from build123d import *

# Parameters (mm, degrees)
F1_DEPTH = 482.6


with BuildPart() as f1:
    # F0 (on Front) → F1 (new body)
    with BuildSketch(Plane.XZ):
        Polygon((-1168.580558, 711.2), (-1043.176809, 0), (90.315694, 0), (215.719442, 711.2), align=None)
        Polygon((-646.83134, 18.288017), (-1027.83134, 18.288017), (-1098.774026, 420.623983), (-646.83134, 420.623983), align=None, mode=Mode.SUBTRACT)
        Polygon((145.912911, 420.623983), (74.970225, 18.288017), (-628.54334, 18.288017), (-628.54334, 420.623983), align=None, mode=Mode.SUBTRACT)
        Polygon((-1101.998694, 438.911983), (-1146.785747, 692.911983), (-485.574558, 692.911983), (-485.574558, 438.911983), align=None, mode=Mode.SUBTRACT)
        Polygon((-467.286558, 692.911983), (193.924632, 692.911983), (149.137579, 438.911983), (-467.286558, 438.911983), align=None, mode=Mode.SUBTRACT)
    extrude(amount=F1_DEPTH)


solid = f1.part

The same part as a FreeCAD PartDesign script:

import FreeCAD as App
import Part
import Sketcher

V = App.Vector
Q = App.Units.Quantity

doc = App.newDocument("Part")
body = doc.addObject("PartDesign::Body", "Body")

sketch1 = doc.addObject("Sketcher::SketchObject", "Sketch")
body.addObject(sketch1)
sketch1.AttachmentSupport = (doc.XZ_Plane, [""])
sketch1.MapMode = "FlatFace"
sketch1.addGeometry([
    Part.LineSegment(V(-1168.580558, 711.2, 0), V(-1043.176809, 0, 0)),
    Part.LineSegment(V(-1043.176809, 0, 0), V(90.315694, 0, 0)),
    Part.LineSegment(V(90.315694, 0, 0), V(215.719442, 711.2, 0)),
    Part.LineSegment(V(215.719442, 711.2, 0), V(-1168.580558, 711.2, 0)),
    Part.LineSegment(V(-646.83134, 420.623983, 0), V(-646.83134, 18.288017, 0)),
    Part.LineSegment(V(-646.83134, 18.288017, 0), V(-1027.83134, 18.288017, 0)),
    Part.LineSegment(V(-1027.83134, 18.288017, 0), V(-1098.774026, 420.623983, 0)),
    Part.LineSegment(V(-1098.774026, 420.623983, 0), V(-646.83134, 420.623983, 0)),
    Part.LineSegment(V(-628.54334, 420.623983, 0), V(145.912911, 420.623983, 0)),
    Part.LineSegment(V(145.912911, 420.623983, 0), V(74.970225, 18.288017, 0)),
    Part.LineSegment(V(74.970225, 18.288017, 0), V(-628.54334, 18.288017, 0)),
    Part.LineSegment(V(-628.54334, 18.288017, 0), V(-628.54334, 420.623983, 0)),
    Part.LineSegment(V(-485.574558, 438.911983, 0), V(-1101.998694, 438.911983, 0)),
    Part.LineSegment(V(-1101.998694, 438.911983, 0), V(-1146.785747, 692.911983, 0)),
    Part.LineSegment(V(-1146.785747, 692.911983, 0), V(-485.574558, 692.911983, 0)),
    Part.LineSegment(V(-485.574558, 692.911983, 0), V(-485.574558, 438.911983, 0)),
    Part.LineSegment(V(-467.286558, 438.911983, 0), V(-467.286558, 692.911983, 0)),
    Part.LineSegment(V(-467.286558, 692.911983, 0), V(193.924632, 692.911983, 0)),
    Part.LineSegment(V(193.924632, 692.911983, 0), V(149.137579, 438.911983, 0)),
    Part.LineSegment(V(149.137579, 438.911983, 0), V(-467.286558, 438.911983, 0)),
], False)
sketch1.addConstraint([
    Sketcher.Constraint("Coincident", 0, 2, 1, 1),
    Sketcher.Constraint("Coincident", 1, 2, 2, 1),
    Sketcher.Constraint("Coincident", 2, 2, 3, 1),
    Sketcher.Constraint("Coincident", 3, 2, 0, 1),
    Sketcher.Constraint("Coincident", 4, 2, 5, 1),
    Sketcher.Constraint("Coincident", 5, 2, 6, 1),
    Sketcher.Constraint("Coincident", 6, 2, 7, 1),
    Sketcher.Constraint("Coincident", 7, 2, 4, 1),
    Sketcher.Constraint("Coincident", 8, 2, 9, 1),
    Sketcher.Constraint("Coincident", 9, 2, 10, 1),
    Sketcher.Constraint("Coincident", 10, 2, 11, 1),
    Sketcher.Constraint("Coincident", 11, 2, 8, 1),
    Sketcher.Constraint("Coincident", 12, 2, 13, 1),
    Sketcher.Constraint("Coincident", 13, 2, 14, 1),
    Sketcher.Constraint("Coincident", 14, 2, 15, 1),
    Sketcher.Constraint("Coincident", 15, 2, 12, 1),
    Sketcher.Constraint("Coincident", 16, 2, 17, 1),
    Sketcher.Constraint("Coincident", 17, 2, 18, 1),
    Sketcher.Constraint("Coincident", 18, 2, 19, 1),
    Sketcher.Constraint("Coincident", 19, 2, 16, 1),
    Sketcher.Constraint("Horizontal", 1),
    Sketcher.Constraint("Horizontal", 3),
    Sketcher.Constraint("Vertical", 4),
    Sketcher.Constraint("Horizontal", 5),
    Sketcher.Constraint("Horizontal", 7),
    Sketcher.Constraint("Horizontal", 8),
    Sketcher.Constraint("Horizontal", 10),
    Sketcher.Constraint("Vertical", 11),
    Sketcher.Constraint("Horizontal", 12),
    Sketcher.Constraint("Horizontal", 14),
    Sketcher.Constraint("Vertical", 15),
    Sketcher.Constraint("Vertical", 16),
    Sketcher.Constraint("Horizontal", 17),
    Sketcher.Constraint("Horizontal", 19),
    Sketcher.Constraint("PointOnObject", 0, 2, -1),
    Sketcher.Constraint("Parallel", 0, 6),
    Sketcher.Constraint("Parallel", 2, 9),
    Sketcher.Constraint("Parallel", 6, 13),
    Sketcher.Constraint("Parallel", 9, 18),
    Sketcher.Constraint("Horizontal", 7, 2, 8, 2),
    Sketcher.Constraint("Horizontal", 5, 2, 9, 2),
    Sketcher.Constraint("Horizontal", 14, 2, 16, 2),
    Sketcher.Constraint("Horizontal", 15, 2, 18, 2),
    Sketcher.Constraint("Equal", 14, 17),
    Sketcher.Constraint("Equal", 12, 19),
    Sketcher.Constraint("DistanceX", 5, 2, 5, 1, Q("15 in")),
    Sketcher.Constraint("DistanceY", 15, 2, 15, 1, Q("10 in")),
    Sketcher.Constraint("DistanceX", 3, 2, 3, 1, Q("54.5 in")),
    Sketcher.Constraint("DistanceY", -1, 1, 2, 2, Q("28 in")),
    Sketcher.Constraint("Angle", 0, Q("-80 deg")),
    Sketcher.Constraint("DistanceX", 4, 2, 10, 2, Q("0.72 in")),
    Sketcher.Constraint("DistanceY", 6, 2, 12, 2, Q("0.72 in")),
    Sketcher.Constraint("DistanceX", 14, 2, 16, 2, Q("0.72 in")),
    Sketcher.Constraint("DistanceX", 8, 1, 8, 2, 774.456251),
    Sketcher.Constraint("DistanceX", 14, 1, 14, 2, 661.211189),
    Sketcher.Constraint("DistanceX", 7, 1, 7, 2, 451.942686),
    Sketcher.Constraint("DistanceX", 0, 2, -1, 1, 1043.176809),
    Sketcher.Constraint("DistanceX", 4, 2, -1, 1, 646.83134),
    Sketcher.Constraint("DistanceX", 14, 2, -1, 1, 485.574558),
    Sketcher.Constraint("DistanceY", -1, 1, 4, 2, 18.288017),
])
pad1 = doc.addObject("PartDesign::Pad", "Pad")
body.addObject(pad1)
pad1.Profile = sketch1
pad1.Length = Q("19 in")

doc.recompute()
